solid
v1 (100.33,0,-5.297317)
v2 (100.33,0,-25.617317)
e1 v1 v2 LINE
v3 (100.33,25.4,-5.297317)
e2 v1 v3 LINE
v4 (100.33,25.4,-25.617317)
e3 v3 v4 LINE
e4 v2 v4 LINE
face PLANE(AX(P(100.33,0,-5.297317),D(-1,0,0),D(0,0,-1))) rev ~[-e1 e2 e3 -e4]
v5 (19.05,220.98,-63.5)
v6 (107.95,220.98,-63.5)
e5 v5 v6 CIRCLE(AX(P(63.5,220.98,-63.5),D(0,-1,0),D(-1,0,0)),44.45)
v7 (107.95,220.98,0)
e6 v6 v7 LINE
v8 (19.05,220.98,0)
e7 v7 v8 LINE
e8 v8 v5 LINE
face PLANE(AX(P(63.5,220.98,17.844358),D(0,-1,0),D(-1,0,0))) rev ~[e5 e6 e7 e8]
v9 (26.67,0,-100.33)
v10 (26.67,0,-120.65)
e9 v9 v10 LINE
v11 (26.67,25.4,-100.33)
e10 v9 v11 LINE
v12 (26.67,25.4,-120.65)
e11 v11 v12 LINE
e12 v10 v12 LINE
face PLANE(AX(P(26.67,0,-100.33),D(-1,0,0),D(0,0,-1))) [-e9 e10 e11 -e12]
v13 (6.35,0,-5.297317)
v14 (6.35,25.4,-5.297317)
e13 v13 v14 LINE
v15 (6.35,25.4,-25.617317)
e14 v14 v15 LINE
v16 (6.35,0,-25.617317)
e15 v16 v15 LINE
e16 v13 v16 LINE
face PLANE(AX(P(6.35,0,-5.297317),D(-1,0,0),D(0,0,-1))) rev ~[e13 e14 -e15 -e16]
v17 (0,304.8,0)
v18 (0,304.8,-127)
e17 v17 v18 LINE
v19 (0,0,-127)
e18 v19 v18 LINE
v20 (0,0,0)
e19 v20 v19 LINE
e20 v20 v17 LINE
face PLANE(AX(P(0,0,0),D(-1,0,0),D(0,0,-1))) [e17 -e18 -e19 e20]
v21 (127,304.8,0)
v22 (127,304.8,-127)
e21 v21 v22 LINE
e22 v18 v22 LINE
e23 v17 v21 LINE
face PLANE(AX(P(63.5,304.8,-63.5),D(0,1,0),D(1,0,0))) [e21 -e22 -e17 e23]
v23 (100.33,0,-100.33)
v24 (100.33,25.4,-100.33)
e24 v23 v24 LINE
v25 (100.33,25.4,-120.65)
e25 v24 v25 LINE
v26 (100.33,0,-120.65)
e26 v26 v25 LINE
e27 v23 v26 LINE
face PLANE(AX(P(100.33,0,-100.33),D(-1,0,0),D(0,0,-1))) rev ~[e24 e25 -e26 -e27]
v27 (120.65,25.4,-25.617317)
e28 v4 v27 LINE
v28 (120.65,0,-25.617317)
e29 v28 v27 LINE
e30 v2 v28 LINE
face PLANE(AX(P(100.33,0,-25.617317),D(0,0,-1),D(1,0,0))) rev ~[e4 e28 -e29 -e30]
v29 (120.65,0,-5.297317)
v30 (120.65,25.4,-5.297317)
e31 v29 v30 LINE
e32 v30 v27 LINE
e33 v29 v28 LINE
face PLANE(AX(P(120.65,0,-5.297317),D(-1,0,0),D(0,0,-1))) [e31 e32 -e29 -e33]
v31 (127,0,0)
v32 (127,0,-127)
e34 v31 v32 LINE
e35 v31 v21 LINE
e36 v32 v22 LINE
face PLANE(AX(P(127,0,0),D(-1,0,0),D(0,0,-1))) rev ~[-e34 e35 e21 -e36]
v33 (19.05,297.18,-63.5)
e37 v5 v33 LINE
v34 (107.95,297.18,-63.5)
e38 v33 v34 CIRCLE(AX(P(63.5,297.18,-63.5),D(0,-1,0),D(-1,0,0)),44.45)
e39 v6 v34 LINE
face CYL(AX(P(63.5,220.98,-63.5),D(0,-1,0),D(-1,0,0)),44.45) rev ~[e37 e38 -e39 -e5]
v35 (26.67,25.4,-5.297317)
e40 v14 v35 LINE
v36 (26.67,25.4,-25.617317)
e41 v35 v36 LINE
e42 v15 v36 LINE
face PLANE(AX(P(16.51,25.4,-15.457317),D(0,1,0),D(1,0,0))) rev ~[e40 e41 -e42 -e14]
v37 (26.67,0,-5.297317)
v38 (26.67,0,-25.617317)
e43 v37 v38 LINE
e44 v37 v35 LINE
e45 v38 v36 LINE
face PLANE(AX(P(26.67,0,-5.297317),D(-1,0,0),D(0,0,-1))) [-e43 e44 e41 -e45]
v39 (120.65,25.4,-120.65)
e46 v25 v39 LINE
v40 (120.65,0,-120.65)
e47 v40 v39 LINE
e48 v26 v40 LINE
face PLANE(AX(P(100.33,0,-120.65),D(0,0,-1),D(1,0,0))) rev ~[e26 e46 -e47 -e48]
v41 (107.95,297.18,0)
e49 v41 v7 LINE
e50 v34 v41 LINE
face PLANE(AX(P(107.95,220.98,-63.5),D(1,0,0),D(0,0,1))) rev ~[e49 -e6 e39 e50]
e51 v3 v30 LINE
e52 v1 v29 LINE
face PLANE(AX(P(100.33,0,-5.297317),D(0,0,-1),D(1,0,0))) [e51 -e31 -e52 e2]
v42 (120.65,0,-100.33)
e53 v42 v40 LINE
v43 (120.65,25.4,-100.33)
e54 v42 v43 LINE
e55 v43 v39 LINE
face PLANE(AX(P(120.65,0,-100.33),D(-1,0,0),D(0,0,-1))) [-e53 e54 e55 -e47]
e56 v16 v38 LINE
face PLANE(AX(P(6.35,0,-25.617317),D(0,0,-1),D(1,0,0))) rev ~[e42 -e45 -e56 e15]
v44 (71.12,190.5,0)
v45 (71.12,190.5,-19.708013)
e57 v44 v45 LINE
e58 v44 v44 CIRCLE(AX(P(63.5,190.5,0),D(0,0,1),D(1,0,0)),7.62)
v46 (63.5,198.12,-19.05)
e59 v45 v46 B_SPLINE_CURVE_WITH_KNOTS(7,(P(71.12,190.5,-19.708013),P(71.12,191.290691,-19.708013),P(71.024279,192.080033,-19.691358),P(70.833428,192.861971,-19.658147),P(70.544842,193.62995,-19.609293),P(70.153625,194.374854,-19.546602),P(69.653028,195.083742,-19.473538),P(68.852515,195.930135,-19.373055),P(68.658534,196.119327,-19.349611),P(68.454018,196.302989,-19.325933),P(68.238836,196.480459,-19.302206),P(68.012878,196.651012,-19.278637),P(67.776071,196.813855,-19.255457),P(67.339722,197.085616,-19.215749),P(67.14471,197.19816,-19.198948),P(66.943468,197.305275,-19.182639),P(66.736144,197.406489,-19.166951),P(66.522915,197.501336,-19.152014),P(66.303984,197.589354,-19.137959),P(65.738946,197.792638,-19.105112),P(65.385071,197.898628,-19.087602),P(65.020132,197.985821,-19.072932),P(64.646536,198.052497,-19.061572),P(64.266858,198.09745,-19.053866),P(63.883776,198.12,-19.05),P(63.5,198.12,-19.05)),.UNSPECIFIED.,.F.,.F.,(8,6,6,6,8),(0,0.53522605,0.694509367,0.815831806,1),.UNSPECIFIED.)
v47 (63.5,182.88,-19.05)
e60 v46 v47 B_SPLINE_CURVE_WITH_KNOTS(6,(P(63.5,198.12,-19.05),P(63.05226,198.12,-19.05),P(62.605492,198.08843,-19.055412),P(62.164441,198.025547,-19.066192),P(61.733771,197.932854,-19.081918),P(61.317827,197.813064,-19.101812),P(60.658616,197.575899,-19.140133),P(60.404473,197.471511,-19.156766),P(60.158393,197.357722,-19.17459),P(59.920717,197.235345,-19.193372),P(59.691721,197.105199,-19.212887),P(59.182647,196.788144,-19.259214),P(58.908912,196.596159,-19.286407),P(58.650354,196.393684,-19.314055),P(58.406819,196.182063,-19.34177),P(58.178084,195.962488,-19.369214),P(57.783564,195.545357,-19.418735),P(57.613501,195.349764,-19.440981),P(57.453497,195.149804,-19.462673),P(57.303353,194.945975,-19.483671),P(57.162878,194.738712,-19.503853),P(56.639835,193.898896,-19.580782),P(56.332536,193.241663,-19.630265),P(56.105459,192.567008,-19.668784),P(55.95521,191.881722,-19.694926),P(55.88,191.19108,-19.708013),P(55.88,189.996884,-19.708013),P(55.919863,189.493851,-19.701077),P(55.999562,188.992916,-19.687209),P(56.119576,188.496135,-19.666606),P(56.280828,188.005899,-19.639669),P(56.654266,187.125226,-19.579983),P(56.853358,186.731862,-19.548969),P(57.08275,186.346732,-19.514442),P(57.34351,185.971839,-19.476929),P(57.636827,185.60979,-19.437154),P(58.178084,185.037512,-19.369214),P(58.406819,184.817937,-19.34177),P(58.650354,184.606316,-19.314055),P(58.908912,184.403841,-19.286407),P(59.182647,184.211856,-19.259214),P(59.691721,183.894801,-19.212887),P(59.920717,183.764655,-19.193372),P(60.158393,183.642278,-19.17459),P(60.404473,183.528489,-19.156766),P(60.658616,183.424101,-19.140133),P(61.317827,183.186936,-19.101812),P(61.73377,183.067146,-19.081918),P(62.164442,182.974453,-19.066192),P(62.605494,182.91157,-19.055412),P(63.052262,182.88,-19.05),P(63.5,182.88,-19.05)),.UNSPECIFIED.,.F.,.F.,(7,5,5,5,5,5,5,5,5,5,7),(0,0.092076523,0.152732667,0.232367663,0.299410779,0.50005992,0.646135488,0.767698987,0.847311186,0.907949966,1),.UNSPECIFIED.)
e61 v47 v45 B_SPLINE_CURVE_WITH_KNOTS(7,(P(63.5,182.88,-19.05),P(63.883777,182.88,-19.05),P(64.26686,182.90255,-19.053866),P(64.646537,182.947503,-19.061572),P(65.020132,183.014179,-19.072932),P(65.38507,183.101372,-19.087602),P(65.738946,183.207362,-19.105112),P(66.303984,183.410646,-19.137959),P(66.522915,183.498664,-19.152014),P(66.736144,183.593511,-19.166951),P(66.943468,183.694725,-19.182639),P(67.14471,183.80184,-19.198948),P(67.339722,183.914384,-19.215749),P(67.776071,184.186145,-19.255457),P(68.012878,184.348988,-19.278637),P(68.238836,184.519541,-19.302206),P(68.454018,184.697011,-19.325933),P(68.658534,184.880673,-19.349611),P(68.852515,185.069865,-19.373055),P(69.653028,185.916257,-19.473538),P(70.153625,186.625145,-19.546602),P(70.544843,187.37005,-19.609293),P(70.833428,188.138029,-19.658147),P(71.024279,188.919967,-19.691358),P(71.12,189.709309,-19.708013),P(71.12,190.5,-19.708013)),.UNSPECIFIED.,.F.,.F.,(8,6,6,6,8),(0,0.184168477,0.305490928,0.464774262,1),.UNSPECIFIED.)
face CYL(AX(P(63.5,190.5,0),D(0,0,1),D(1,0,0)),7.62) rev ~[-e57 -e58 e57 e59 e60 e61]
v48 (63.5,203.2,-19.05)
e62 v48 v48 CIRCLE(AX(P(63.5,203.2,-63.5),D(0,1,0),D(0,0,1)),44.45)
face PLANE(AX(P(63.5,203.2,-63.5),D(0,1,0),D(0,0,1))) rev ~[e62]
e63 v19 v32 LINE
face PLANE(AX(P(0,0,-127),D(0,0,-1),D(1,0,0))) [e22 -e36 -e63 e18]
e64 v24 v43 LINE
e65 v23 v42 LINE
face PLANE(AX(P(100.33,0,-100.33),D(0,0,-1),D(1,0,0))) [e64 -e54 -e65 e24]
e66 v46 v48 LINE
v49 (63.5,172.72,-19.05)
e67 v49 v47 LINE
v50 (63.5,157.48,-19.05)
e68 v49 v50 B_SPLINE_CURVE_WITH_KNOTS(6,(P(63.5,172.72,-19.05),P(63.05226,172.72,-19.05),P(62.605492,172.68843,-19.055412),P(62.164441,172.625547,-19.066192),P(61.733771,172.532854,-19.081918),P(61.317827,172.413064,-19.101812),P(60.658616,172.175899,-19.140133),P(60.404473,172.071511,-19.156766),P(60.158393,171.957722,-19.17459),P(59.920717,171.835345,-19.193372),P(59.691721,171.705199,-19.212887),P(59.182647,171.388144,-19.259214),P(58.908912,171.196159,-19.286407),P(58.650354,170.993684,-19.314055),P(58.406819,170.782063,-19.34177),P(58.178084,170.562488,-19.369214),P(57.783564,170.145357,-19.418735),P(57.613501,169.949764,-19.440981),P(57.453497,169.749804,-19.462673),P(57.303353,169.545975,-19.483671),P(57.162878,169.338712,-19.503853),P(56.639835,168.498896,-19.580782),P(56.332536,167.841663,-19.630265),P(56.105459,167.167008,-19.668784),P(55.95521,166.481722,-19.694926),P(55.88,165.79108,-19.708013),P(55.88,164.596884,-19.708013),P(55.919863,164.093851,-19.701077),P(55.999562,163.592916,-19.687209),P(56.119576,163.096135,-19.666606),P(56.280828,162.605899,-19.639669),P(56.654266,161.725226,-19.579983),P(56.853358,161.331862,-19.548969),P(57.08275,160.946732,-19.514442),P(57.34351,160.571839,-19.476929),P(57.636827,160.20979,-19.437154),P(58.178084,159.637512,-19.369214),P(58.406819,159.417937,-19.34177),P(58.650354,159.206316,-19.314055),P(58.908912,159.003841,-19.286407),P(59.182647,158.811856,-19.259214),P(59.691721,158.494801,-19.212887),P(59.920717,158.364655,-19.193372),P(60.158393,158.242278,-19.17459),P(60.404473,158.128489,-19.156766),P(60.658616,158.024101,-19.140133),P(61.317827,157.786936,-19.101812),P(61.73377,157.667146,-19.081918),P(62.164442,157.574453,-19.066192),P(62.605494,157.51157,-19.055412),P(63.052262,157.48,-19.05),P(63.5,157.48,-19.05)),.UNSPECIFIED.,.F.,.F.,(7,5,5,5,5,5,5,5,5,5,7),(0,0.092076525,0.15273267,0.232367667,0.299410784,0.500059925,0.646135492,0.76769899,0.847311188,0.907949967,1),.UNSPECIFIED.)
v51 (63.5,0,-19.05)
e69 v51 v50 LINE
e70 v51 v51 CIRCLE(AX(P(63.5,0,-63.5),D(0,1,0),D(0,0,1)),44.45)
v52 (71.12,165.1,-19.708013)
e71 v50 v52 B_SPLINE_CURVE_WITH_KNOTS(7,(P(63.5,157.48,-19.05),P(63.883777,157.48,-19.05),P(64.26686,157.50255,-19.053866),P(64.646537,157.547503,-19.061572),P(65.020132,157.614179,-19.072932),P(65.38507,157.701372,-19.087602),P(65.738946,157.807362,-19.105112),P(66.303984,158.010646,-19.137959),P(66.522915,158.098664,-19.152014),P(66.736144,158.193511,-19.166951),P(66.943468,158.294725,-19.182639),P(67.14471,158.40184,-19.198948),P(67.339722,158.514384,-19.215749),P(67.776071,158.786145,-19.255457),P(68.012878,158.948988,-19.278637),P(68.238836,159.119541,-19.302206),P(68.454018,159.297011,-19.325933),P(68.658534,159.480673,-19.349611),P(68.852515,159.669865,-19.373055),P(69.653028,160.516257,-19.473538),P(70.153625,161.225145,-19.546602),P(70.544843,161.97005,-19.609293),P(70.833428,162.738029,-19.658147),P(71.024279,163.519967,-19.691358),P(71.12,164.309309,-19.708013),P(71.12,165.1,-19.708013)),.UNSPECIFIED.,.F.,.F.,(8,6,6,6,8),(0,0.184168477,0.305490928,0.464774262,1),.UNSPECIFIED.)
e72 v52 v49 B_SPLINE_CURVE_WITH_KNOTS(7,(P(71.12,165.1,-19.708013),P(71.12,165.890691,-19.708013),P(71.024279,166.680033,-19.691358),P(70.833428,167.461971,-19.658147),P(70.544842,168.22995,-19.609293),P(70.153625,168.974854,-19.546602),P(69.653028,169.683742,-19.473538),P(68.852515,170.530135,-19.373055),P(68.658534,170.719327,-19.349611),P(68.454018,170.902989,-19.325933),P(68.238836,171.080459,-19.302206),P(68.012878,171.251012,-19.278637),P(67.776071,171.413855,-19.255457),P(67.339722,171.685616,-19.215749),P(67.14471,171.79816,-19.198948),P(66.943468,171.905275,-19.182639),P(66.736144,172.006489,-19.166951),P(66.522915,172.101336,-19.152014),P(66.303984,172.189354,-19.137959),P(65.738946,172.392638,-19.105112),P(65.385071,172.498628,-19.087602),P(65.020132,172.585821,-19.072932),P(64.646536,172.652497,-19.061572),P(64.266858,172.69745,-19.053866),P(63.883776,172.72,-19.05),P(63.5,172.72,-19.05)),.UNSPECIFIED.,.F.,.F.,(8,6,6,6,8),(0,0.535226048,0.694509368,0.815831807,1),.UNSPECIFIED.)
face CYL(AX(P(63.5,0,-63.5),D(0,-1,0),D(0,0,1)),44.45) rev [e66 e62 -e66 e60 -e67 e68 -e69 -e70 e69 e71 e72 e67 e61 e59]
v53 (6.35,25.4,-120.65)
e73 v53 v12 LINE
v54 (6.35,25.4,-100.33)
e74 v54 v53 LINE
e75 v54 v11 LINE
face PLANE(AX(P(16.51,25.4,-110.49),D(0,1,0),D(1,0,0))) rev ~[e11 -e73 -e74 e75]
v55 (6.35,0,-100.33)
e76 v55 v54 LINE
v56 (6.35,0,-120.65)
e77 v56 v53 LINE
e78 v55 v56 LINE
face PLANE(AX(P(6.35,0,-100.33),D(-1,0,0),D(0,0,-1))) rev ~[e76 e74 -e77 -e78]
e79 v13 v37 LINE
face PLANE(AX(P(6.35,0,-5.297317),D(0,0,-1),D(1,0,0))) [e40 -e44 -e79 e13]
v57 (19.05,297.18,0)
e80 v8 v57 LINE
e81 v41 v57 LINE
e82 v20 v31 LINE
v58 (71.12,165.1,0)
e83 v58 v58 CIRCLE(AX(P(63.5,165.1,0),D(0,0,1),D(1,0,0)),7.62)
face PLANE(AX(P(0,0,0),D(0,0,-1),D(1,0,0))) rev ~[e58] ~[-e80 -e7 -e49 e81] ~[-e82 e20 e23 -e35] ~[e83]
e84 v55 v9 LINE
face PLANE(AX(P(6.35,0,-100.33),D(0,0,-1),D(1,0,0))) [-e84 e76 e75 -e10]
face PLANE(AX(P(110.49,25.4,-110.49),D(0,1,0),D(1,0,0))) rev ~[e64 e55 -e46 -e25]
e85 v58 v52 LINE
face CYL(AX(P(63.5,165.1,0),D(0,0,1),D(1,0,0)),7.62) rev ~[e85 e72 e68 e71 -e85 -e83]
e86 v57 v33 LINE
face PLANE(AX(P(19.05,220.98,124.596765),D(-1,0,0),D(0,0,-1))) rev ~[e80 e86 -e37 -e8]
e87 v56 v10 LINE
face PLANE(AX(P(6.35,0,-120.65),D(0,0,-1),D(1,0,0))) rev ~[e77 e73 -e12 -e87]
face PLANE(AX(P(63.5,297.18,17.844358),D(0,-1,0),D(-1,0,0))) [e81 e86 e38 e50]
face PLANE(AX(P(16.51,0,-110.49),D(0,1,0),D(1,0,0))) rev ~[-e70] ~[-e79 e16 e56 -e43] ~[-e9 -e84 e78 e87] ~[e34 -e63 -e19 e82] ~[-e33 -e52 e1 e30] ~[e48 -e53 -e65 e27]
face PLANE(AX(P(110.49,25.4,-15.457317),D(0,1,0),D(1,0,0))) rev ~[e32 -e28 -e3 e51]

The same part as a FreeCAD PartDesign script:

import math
import FreeCAD as App
import Part
import Sketcher
from FreeCAD import Vector
Q = App.Units.Quantity

doc = App.newDocument("Part")
params = doc.addObject("Spreadsheet::Sheet", "Params")
for row, (alias, value) in enumerate([
    ("sketch1_width", "5 in"),
    ("pad1_length", "12 in"),
    ("sketch2_diameter", "3.5 in"),
    ("pocket1_length", "8 in"),
    ("sketch3_width", "0.8 in"),
    ("pocket2_length", "1 in"),
    ("sketch4_radius", "1.75 in"),
    ("pocket3_length", "3 in"),
    ("sketch5_diameter", "0.6 in"),
    ("pocket4_length", "2.23 in"),
], start=1):
    params.set(f"A{row}", alias)
    params.set(f"B{row}", "=" + value)
    params.setAlias(f"B{row}", alias)

body = doc.addObject("PartDesign::Body", "Body")

# Sketch on XZ plane
sketch1 = body.newObject("Sketcher::SketchObject", "Sketch")
sketch1.AttachmentSupport = (doc.getObject("XZ_Plane"), [""])
sketch1.MapMode = "FlatFace"
sketch1.addGeometry([
    Part.LineSegment(Vector(0, -127, 0), Vector(0, 0, 0)),
    Part.LineSegment(Vector(0, 0, 0), Vector(127, 0, 0)),
    Part.LineSegment(Vector(127, 0, 0), Vector(127, -127, 0)),
    Part.LineSegment(Vector(127, -127, 0), Vector(0, -127, 0)),
], False)
sketch1.addConstraint([
    Sketcher.Constraint("Coincident", 0, 2, 1, 1),
    Sketcher.Constraint("Coincident", 1, 2, 2, 1),
    Sketcher.Constraint("Coincident", 2, 2, 3, 1),
    Sketcher.Constraint("Coincident", 3, 2, 0, 1),
    Sketcher.Constraint("Vertical", 0),
    Sketcher.Constraint("Horizontal", 1),
    Sketcher.Constraint("Vertical", 2),
    Sketcher.Constraint("Horizontal", 3),
    Sketcher.Constraint("Coincident", 0, 2, -1, 1),
    Sketcher.Constraint("Equal", 3, 0),
    Sketcher.Constraint("DistanceX", 1, 1, 1, 2, Q("5 in")),
])
sketch1.setExpression("Constraints[10]", "Params.sketch1_width")
pad1 = body.newObject("PartDesign::Pad", "Pad")
pad1.Profile = sketch1
pad1.setExpression("Length", "Params.pad1_length")
pad1.Reversed = True

# Sketch on XZ plane
sketch2 = body.newObject("Sketcher::SketchObject", "Sketch001")
sketch2.AttachmentSupport = (doc.getObject("XZ_Plane"), [""])
sketch2.MapMode = "FlatFace"
sketch2.addGeometry(Part.Circle(Vector(63.5, -63.5, 0), Vector(0, 0, 1), 44.45), False)
sketch2.addConstraint([
    Sketcher.Constraint("Diameter", 0, Q("3.5 in")),
    Sketcher.Constraint("DistanceX", -1, 1, 0, 3, Q("2.5 in")),
    Sketcher.Constraint("DistanceY", 0, 3, -1, 1, Q("2.5 in")),
])
sketch2.setExpression("Constraints[0]", "Params.sketch2_diameter")
pocket1 = body.newObject("PartDesign::Pocket", "Pocket")
pocket1.Profile = sketch2
pocket1.setExpression("Length", "Params.pocket1_length")

# Sketch on XZ plane
sketch3 = body.newObject("Sketcher::SketchObject", "Sketch002")
sketch3.AttachmentSupport = (doc.getObject("XZ_Plane"), [""])
sketch3.MapMode = "FlatFace"
sketch3.addGeometry([
    Part.LineSegment(Vector(6.35, -25.617317, 0), Vector(6.35, -5.297317, 0)),  # 0
    Part.LineSegment(Vector(6.35, -5.297317, 0), Vector(26.67, -5.297317, 0)),  # 1
    Part.LineSegment(Vector(26.67, -5.297317, 0), Vector(26.67, -25.617317, 0)),  # 2
    Part.LineSegment(Vector(26.67, -25.617317, 0), Vector(6.35, -25.617317, 0)),  # 3
    Part.LineSegment(Vector(100.33, -25.617317, 0), Vector(100.33, -5.297317, 0)),  # 4
    Part.LineSegment(Vector(100.33, -5.297317, 0), Vector(120.65, -5.297317, 0)),  # 5
    Part.LineSegment(Vector(120.65, -5.297317, 0), Vector(120.65, -25.617317, 0)),  # 6
    Part.LineSegment(Vector(120.65, -25.617317, 0), Vector(100.33, -25.617317, 0)),  # 7
    Part.LineSegment(Vector(100.33, -120.65, 0), Vector(100.33, -100.33, 0)),  # 8
    Part.LineSegment(Vector(100.33, -100.33, 0), Vector(120.65, -100.33, 0)),  # 9
    Part.LineSegment(Vector(120.65, -100.33, 0), Vector(120.65, -120.65, 0)),  # 10
    Part.LineSegment(Vector(120.65, -120.65, 0), Vector(100.33, -120.65, 0)),  # 11
    Part.LineSegment(Vector(6.35, -120.65, 0), Vector(6.35, -100.33, 0)),  # 12
    Part.LineSegment(Vector(6.35, -100.33, 0), Vector(26.67, -100.33, 0)),  # 13
    Part.LineSegment(Vector(26.67, -100.33, 0), Vector(26.67, -120.65, 0)),  # 14
    Part.LineSegment(Vector(26.67, -120.65, 0), Vector(6.35, -120.65, 0)),  # 15
], False)
sketch3.addConstraint([
    Sketcher.Constraint("Coincident", 0, 2, 1, 1),
    Sketcher.Constraint("Coincident", 1, 2, 2, 1),
    Sketcher.Constraint("Coincident", 2, 2, 3, 1),
    Sketcher.Constraint("Coincident", 3, 2, 0, 1),
    Sketcher.Constraint("Coincident", 4, 2, 5, 1),
    Sketcher.Constraint("Coincident", 5, 2, 6, 1),
    Sketcher.Constraint("Coincident", 6, 2, 7, 1),
    Sketcher.Constraint("Coincident", 7, 2, 4, 1),
    Sketcher.Constraint("Coincident", 8, 2, 9, 1),
    Sketcher.Constraint("Coincident", 9, 2, 10, 1),
    Sketcher.Constraint("Coincident", 10, 2, 11, 1),
    Sketcher.Constraint("Coincident", 11, 2, 8, 1),
    Sketcher.Constraint("Coincident", 12, 2, 13, 1),
    Sketcher.Constraint("Coincident", 13, 2, 14, 1),
    Sketcher.Constraint("Coincident", 14, 2, 15, 1),
    Sketcher.Constraint("Coincident", 15, 2, 12, 1),
    Sketcher.Constraint("Vertical", 0),
    Sketcher.Constraint("Horizontal", 1),
    Sketcher.Constraint("Vertical", 2),
    Sketcher.Constraint("Horizontal", 3),
    Sketcher.Constraint("Vertical", 4),
    Sketcher.Constraint("Horizontal", 5),
    Sketcher.Constraint("Vertical", 6),
    Sketcher.Constraint("Horizontal", 7),
    Sketcher.Constraint("Vertical", 8),
    Sketcher.Constraint("Horizontal", 9),
    Sketcher.Constraint("Vertical", 10),
    Sketcher.Constraint("Horizontal", 11),
    Sketcher.Constraint("Vertical", 12),
    Sketcher.Constraint("Horizontal", 13),
    Sketcher.Constraint("Vertical", 14),
    Sketcher.Constraint("Horizontal", 15),
    Sketcher.Constraint("Horizontal", 1, 2, 4, 2),
    Sketcher.Constraint("Horizontal", 3, 2, 6, 2),
    Sketcher.Constraint("Horizontal", 9, 2, 12, 2),
    Sketcher.Constraint("Horizontal", 11, 2, 14, 2),
    Sketcher.Constraint("Vertical", 7, 2, 8, 2),
    Sketcher.Constraint("Vertical", 6, 2, 9, 2),
    Sketcher.Constraint("Vertical", 3, 2, 12, 2),
    Sketcher.Constraint("Vertical", 2, 2, 13, 2),
    Sketcher.Constraint("Equal", 3, 5),
    Sketcher.Constraint("Equal", 15, 0),
    Sketcher.Constraint("Equal", 6, 8),
    Sketcher.Constraint("DistanceX", 1, 1, 1, 2, Q("0.8 in")),
    Sketcher.Constraint("DistanceX", 1, 2, 4, 2, Q("2.9 in")),
    Sketcher.Constraint("DistanceX", -1, 1, 0, 2, Q("0.25 in")),
    Sketcher.Constraint("DistanceY", 8, 2, -1, 1, Q("3.95 in")),
    Sketcher.Constraint("DistanceY", 0, 2, -1, 1, 5.297317),
])
sketch3.setExpression("Constraints[43]", "Params.sketch3_width")
pocket2 = body.newObject("PartDesign::Pocket", "Pocket001")
pocket2.Profile = sketch3
pocket2.setExpression("Length", "Params.pocket2_length")

# Sketch on XZ plane
sketch4 = body.newObject("Sketcher::SketchObject", "Sketch003")
sketch4.AttachmentSupport = (doc.getObject("XZ_Plane"), [""])
sketch4.MapMode = "FlatFace"
sketch4.AttachmentOffset = App.Placement(Vector(0, 0, -8.7 * 25.4), App.Rotation())
sketch4.addGeometry([
    Part.LineSegment(Vector(107.95, 124.596765, 0), Vector(107.95, -63.5, 0)),
    Part.ArcOfCircle(Part.Circle(Vector(63.5, -63.5, 0), Vector(0, 0, 1), 44.45), math.radians(180), math.radians(360)),
    Part.LineSegment(Vector(19.05, -63.5, 0), Vector(19.05, 124.596765, 0)),
    Part.LineSegment(Vector(19.05, 124.596765, 0), Vector(107.95, 124.596765, 0)),
], False)
sketch4.addConstraint([
    Sketcher.Constraint("Tangent", 0, 2, 1, 2),
    Sketcher.Constraint("Tangent", 1, 1, 2, 1),
    Sketcher.Constraint("Coincident", 2, 2, 3, 1),
    Sketcher.Constraint("Coincident", 3, 2, 0, 1),
    Sketcher.Constraint("Vertical", 0),
    Sketcher.Constraint("Vertical", 2),
    Sketcher.Constraint("Horizontal", 3),
    Sketcher.Constraint("Radius", 1, Q("1.75 in")),
    Sketcher.Constraint("DistanceX", -1, 1, 1, 3, Q("2.5 in")),
    Sketcher.Constraint("DistanceY", 1, 3, -1, 1, Q("2.5 in")),
    Sketcher.Constraint("DistanceY", 0, 2, 0, 1, 188.096765),
])
sketch4.setExpression("Constraints[7]", "Params.sketch4_radius")
pocket3 = body.newObject("PartDesign::Pocket", "Pocket002")
pocket3.Profile = sketch4
pocket3.setExpression("Length", "Params.pocket3_length")

# Sketch on XY plane
sketch5 = body.newObject("Sketcher::SketchObject", "Sketch004")
sketch5.AttachmentSupport = (doc.getObject("XY_Plane"), [""])
sketch5.MapMode = "FlatFace"
sketch5.addGeometry([
    Part.Circle(Vector(63.5, 190.5, 0), Vector(0, 0, 1), 7.62),
    Part.Circle(Vector(63.5, 165.1, 0), Vector(0, 0, 1), 7.62),
], False)
sketch5.addConstraint([
    Sketcher.Constraint("Equal", 0, 1),
    Sketcher.Constraint("Vertical", 0, 3, 1, 3),
    Sketcher.Constraint("Diameter", 0, Q("0.6 in")),
    Sketcher.Constraint("DistanceY", 1, 3, 0, 3, Q("1 in")),
    Sketcher.Constraint("DistanceX", -1, 1, 0, 3, Q("2.5 in")),
    Sketcher.Constraint("DistanceY", -1, 1, 0, 3, Q("7.5 in")),
])
sketch5.setExpression("Constraints[2]", "Params.sketch5_diameter")
pocket4 = body.newObject("PartDesign::Pocket", "Pocket003")
pocket4.Profile = sketch5
pocket4.setExpression("Length", "Params.pocket4_length")

doc.recompute()
